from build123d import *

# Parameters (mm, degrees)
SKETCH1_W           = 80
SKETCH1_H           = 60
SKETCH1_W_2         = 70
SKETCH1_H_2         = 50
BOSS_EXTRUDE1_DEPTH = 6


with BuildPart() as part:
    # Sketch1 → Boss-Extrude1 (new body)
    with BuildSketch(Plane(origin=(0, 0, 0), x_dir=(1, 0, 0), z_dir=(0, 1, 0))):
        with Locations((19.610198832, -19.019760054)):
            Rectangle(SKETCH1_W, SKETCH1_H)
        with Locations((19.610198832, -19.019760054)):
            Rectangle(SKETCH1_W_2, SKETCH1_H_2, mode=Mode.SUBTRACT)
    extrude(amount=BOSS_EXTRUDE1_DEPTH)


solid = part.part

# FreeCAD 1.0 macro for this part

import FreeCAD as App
import Part
import Sketcher
Q = App.Units.Quantity


def add_polygon(sketch, points):
    """Adds a closed chain of lines whose ends are joined by coincident constraints."""
    first, n = sketch.GeometryCount, len(points)
    for a, b in zip(points, points[1:] + points[:1]):
        sketch.addGeometry(Part.LineSegment(App.Vector(*a, 0), App.Vector(*b, 0)), False)
    for i in range(n):
        sketch.addConstraint(Sketcher.Constraint("Coincident", first + i, 2, first + (i + 1) % n, 1))

doc = App.newDocument("Part")
body = doc.addObject("PartDesign::Body", "Body")

sketch1 = body.newObject("Sketcher::SketchObject", "Sketch")
sketch1.AttachmentSupport = (doc.getObject("XZ_Plane"), [""])
sketch1.MapMode = "FlatFace"
add_polygon(sketch1, [(-20, -11), (-20, 49), (60, 49), (60, -11)])
add_polygon(sketch1, [(55, 44), (-15, 44), (-15, -6), (55, -6)])
sketch1.addConstraint(Sketcher.Constraint("Vertical", 0))
sketch1.addConstraint(Sketcher.Constraint("Horizontal", 1))
sketch1.addConstraint(Sketcher.Constraint("Vertical", 2))
sketch1.addConstraint(Sketcher.Constraint("Horizontal", 3))
sketch1.addConstraint(Sketcher.Constraint("Horizontal", 4))
sketch1.addConstraint(Sketcher.Constraint("Vertical", 5))
sketch1.addConstraint(Sketcher.Constraint("Horizontal", 6))
sketch1.addConstraint(Sketcher.Constraint("Vertical", 7))
sketch1.addConstraint(Sketcher.Constraint("DistanceX", 1, 1, 1, 2, Q("80 mm")))
sketch1.addConstraint(Sketcher.Constraint("DistanceX", 4, 2, 4, 1, Q("70 mm")))
sketch1.addConstraint(Sketcher.Constraint("DistanceY", 0, 1, 0, 2, Q("60 mm")))
sketch1.addConstraint(Sketcher.Constraint("DistanceY", 5, 2, 5, 1, Q("50 mm")))
sketch1.addConstraint(Sketcher.Constraint("DistanceX", 0, 2, 4, 2, Q("5 mm")))
sketch1.addConstraint(Sketcher.Constraint("DistanceY", 4, 2, 0, 2, Q("5 mm")))
sketch1.addConstraint(Sketcher.Constraint("DistanceX", 0, 2, -1, 1, Q("20.389801 mm")))
sketch1.addConstraint(Sketcher.Constraint("DistanceY", -1, 1, 0, 2, Q("49.01976 mm")))
pad1 = body.newObject("PartDesign::Pad", "Pad")
pad1.Profile = sketch1
pad1.Length = 6
pad1.Reversed = True

doc.recompute()
